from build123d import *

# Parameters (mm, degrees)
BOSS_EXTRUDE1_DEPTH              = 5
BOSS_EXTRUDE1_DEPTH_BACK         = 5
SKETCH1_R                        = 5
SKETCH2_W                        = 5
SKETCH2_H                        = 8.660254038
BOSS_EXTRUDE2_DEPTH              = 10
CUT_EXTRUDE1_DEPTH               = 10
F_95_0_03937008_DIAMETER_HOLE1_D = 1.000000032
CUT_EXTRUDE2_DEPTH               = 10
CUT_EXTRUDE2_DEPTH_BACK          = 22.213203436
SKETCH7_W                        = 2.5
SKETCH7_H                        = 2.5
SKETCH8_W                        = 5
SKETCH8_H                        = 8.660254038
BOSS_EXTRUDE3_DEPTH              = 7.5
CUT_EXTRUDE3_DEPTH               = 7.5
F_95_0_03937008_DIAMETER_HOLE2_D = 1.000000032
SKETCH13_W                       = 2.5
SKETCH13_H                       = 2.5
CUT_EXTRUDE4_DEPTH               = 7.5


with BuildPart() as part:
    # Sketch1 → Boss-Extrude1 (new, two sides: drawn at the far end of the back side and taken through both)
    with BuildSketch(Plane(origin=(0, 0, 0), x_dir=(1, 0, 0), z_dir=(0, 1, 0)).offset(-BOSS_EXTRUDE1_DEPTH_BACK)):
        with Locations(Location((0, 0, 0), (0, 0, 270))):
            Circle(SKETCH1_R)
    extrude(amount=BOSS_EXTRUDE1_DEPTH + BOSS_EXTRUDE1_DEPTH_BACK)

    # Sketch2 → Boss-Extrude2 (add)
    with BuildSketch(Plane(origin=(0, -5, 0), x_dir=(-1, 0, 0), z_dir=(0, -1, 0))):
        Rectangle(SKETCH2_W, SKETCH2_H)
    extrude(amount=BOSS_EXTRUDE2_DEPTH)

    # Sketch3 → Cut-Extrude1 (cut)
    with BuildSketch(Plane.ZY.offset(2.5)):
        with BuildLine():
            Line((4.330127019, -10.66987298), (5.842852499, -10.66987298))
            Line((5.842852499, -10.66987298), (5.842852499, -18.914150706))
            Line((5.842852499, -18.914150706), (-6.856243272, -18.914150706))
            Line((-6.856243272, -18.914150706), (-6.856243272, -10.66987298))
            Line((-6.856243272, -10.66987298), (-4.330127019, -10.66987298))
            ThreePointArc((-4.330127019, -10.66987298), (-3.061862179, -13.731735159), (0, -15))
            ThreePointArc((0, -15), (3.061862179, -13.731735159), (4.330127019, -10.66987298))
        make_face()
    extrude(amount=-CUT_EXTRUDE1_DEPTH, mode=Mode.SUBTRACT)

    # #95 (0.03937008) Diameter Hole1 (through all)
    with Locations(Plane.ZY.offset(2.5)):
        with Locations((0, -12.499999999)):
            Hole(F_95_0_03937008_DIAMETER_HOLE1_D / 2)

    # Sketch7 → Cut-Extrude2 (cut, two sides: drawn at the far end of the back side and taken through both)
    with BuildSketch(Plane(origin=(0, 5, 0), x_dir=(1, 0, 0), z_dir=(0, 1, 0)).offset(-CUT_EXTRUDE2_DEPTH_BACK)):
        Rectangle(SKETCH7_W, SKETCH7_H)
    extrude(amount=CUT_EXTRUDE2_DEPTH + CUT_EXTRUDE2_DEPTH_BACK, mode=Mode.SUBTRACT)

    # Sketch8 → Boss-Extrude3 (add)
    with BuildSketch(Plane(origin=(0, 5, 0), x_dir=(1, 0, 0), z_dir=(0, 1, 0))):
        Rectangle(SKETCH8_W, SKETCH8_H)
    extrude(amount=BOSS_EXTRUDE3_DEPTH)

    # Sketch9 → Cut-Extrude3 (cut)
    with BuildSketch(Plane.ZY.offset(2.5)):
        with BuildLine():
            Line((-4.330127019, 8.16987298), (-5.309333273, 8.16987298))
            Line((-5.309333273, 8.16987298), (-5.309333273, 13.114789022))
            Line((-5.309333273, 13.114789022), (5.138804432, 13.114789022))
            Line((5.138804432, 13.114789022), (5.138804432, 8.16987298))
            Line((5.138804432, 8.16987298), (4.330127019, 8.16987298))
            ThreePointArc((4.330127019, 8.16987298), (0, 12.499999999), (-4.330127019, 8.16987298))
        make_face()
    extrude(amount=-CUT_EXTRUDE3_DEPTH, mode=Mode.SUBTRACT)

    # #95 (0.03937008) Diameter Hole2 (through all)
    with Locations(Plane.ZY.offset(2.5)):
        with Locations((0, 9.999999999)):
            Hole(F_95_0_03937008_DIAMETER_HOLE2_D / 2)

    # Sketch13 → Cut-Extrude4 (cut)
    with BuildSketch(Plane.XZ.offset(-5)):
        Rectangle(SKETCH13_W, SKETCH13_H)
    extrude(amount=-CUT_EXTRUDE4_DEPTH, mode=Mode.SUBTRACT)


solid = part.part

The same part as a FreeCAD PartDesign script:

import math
import FreeCAD as App
import Part
import Sketcher


def add_polygon(sketch, points):
    """Adds a closed chain of lines whose ends are joined by coincident constraints."""
    first, n = sketch.GeometryCount, len(points)
    for a, b in zip(points, points[1:] + points[:1]):
        sketch.addGeometry(Part.LineSegment(App.Vector(*a, 0), App.Vector(*b, 0)), False)
    for i in range(n):
        sketch.addConstraint(Sketcher.Constraint("Coincident", first + i, 2, first + (i + 1) % n, 1))

doc = App.newDocument("Part")
body = doc.addObject("PartDesign::Body", "Body")

# Sketch on XZ plane
sketch1 = doc.addObject("Sketcher::SketchObject", "Sketch")
body.addObject(sketch1)
sketch1.AttachmentSupport = (doc.XZ_Plane, [""])
sketch1.MapMode = "FlatFace"
sketch1.addGeometry(Part.Circle(App.Vector(0, 0, 0), App.Vector(0, 0, 1), 5), False)
sketch1.addConstraint(Sketcher.Constraint("Coincident", 0, 3, -1, 1))
sketch1.addConstraint(Sketcher.Constraint("Diameter", 0, 10.0))
pad1 = doc.addObject("PartDesign::Pad", "Pad")
body.addObject(pad1)
pad1.Profile = sketch1
pad1.Type = "TwoLengths"
pad1.Length = 5
pad1.Length2 = 5
pad1.Reversed = True

# Sketch on XZ plane
sketch2 = doc.addObject("Sketcher::SketchObject", "Sketch001")
body.addObject(sketch2)
sketch2.AttachmentSupport = (doc.XZ_Plane, [""])
sketch2.MapMode = "FlatFace"
sketch2.AttachmentOffset = App.Placement(App.Vector(0, 0, 5), App.Rotation())
add_polygon(sketch2, [(2.5, -4.330127), (2.5, 4.330127), (-2.5, 4.330127), (-2.5, -4.330127)])  # lines 0-3
sketch2.addConstraint(Sketcher.Constraint("Vertical", 0))
sketch2.addConstraint(Sketcher.Constraint("Horizontal", 1))
sketch2.addConstraint(Sketcher.Constraint("Vertical", 2))
sketch2.addConstraint(Sketcher.Constraint("Horizontal", 3))
sketch2.addConstraint(Sketcher.Constraint("Symmetric", 0, 2, 2, 2, -1, 1))
sketch2.addConstraint(Sketcher.Constraint("DistanceX", 1, 2, 1, 1, 5.0))
sketch2.addConstraint(Sketcher.Constraint("DistanceY", 0, 1, 0, 2, 8.660254))
pad2 = doc.addObject("PartDesign::Pad", "Pad001")
body.addObject(pad2)
pad2.Profile = sketch2
pad2.Length = 10

# Sketch on YZ plane
sketch3 = doc.addObject("Sketcher::SketchObject", "Sketch002")
body.addObject(sketch3)
sketch3.AttachmentSupport = (doc.YZ_Plane, [""])
sketch3.MapMode = "FlatFace"
sketch3.AttachmentOffset = App.Placement(App.Vector(0, 0, -2.5), App.Rotation())
sketch3.addGeometry(Part.LineSegment(App.Vector(-10.669873, 5.842852, 0), App.Vector(-10.669873, 4.330127, 0)), False)
sketch3.addGeometry(Part.ArcOfCircle(Part.Circle(App.Vector(-10.669873, 0, 0), App.Vector(0, 0, 1), 4.330127), math.radians(90), math.radians(180)), False)
sketch3.addGeometry(Part.ArcOfCircle(Part.Circle(App.Vector(-10.669873, 0, 0), App.Vector(0, 0, 1), 4.330127), math.radians(180), math.radians(270)), False)
sketch3.addGeometry(Part.LineSegment(App.Vector(-10.669873, -4.330127, 0), App.Vector(-10.669873, -6.856243, 0)), False)
sketch3.addGeometry(Part.LineSegment(App.Vector(-10.669873, -6.856243, 0), App.Vector(-18.914151, -6.856243, 0)), False)
sketch3.addGeometry(Part.LineSegment(App.Vector(-18.914151, -6.856243, 0), App.Vector(-18.914151, 5.842852, 0)), False)
sketch3.addGeometry(Part.LineSegment(App.Vector(-18.914151, 5.842852, 0), App.Vector(-10.669873, 5.842852, 0)), False)
sketch3.addConstraint(Sketcher.Constraint("Coincident", 0, 2, 1, 1))
sketch3.addConstraint(Sketcher.Constraint("Tangent", 1, 2, 2, 1))
sketch3.addConstraint(Sketcher.Constraint("Coincident", 2, 2, 3, 1))
sketch3.addConstraint(Sketcher.Constraint("Coincident", 3, 2, 4, 1))
sketch3.addConstraint(Sketcher.Constraint("Coincident", 4, 2, 5, 1))
sketch3.addConstraint(Sketcher.Constraint("Coincident", 5, 2, 6, 1))
sketch3.addConstraint(Sketcher.Constraint("Coincident", 6, 2, 0, 1))
sketch3.addConstraint(Sketcher.Constraint("Vertical", 0))
sketch3.addConstraint(Sketcher.Constraint("Vertical", 3))
sketch3.addConstraint(Sketcher.Constraint("Horizontal", 4))
sketch3.addConstraint(Sketcher.Constraint("Vertical", 5))
sketch3.addConstraint(Sketcher.Constraint("Horizontal", 6))
sketch3.addConstraint(Sketcher.Constraint("Equal", 1, 2))
sketch3.addConstraint(Sketcher.Constraint("Symmetric", 0, 2, 2, 2, -1))
sketch3.addConstraint(Sketcher.Constraint("PointOnObject", 1, 2, -1))
sketch3.addConstraint(Sketcher.Constraint("Vertical", 2, 3, 0, 2))
sketch3.addConstraint(Sketcher.Constraint("DistanceX", 1, 2, -1, 1, 15.0))
sketch3.addConstraint(Sketcher.Constraint("Radius", 1, 4.330127))
sketch3.addConstraint(Sketcher.Constraint("DistanceX", 4, 2, 4, 1, 8.244278))
sketch3.addConstraint(Sketcher.Constraint("DistanceY", 0, 2, 0, 1, 1.512725))
sketch3.addConstraint(Sketcher.Constraint("DistanceY", 3, 2, 3, 1, 2.526116))
pocket1 = doc.addObject("PartDesign::Pocket", "Pocket")
body.addObject(pocket1)
pocket1.Profile = sketch3
pocket1.Length = 10
pocket1.Reversed = True

# Sketch on YZ plane
sketch4 = doc.addObject("Sketcher::SketchObject", "Sketch003")
body.addObject(sketch4)
sketch4.AttachmentSupport = (doc.YZ_Plane, [""])
sketch4.MapMode = "FlatFace"
sketch4.AttachmentOffset = App.Placement(App.Vector(0, 0, -2.5), App.Rotation())
sketch4.addGeometry(Part.Circle(App.Vector(-12.5, 0, 0), App.Vector(0, 0, 1), 0.5), False)
sketch4.addConstraint(Sketcher.Constraint("PointOnObject", 0, 3, -1))
sketch4.addConstraint(Sketcher.Constraint("Diameter", 0, 1.0))
sketch4.addConstraint(Sketcher.Constraint("DistanceX", 0, 3, -1, 1, 12.5))
doc.recompute()
hole = doc.addObject("PartDesign::Hole", "Hole")
body.addObject(hole)
hole.Profile = sketch4
hole.ThreadType = "None"
hole.Diameter = 1
hole.DepthType = "ThroughAll"
hole.Reversed = True

# Sketch on XZ plane
sketch5 = doc.addObject("Sketcher::SketchObject", "Sketch004")
body.addObject(sketch5)
sketch5.AttachmentSupport = (doc.XZ_Plane, [""])
sketch5.MapMode = "FlatFace"
sketch5.AttachmentOffset = App.Placement(App.Vector(0, 0, -5), App.Rotation())
add_polygon(sketch5, [(-1.25, -1.25), (-1.25, 1.25), (1.25, 1.25), (1.25, -1.25)])  # lines 0-3
sketch5.addConstraint(Sketcher.Constraint("Vertical", 0))
sketch5.addConstraint(Sketcher.Constraint("Horizontal", 1))
sketch5.addConstraint(Sketcher.Constraint("Vertical", 2))
sketch5.addConstraint(Sketcher.Constraint("Horizontal", 3))
sketch5.addConstraint(Sketcher.Constraint("Symmetric", 0, 2, 2, 2, -1, 1))
sketch5.addConstraint(Sketcher.Constraint("Equal", 3, 0))
sketch5.addConstraint(Sketcher.Constraint("DistanceX", 1, 1, 1, 2, 2.5))
pocket2 = doc.addObject("PartDesign::Pocket", "Pocket001")
body.addObject(pocket2)
pocket2.Profile = sketch5
pocket2.Type = "ThroughAll"
pocket2.Midplane = True

# Sketch on XZ plane
sketch6 = doc.addObject("Sketcher::SketchObject", "Sketch005")
body.addObject(sketch6)
sketch6.AttachmentSupport = (doc.XZ_Plane, [""])
sketch6.MapMode = "FlatFace"
sketch6.AttachmentOffset = App.Placement(App.Vector(0, 0, -5), App.Rotation())
add_polygon(sketch6, [(-2.5, -4.330127), (-2.5, 4.330127), (2.5, 4.330127), (2.5, -4.330127)])  # lines 0-3
sketch6.addConstraint(Sketcher.Constraint("Vertical", 0))
sketch6.addConstraint(Sketcher.Constraint("Horizontal", 1))
sketch6.addConstraint(Sketcher.Constraint("Vertical", 2))
sketch6.addConstraint(Sketcher.Constraint("Horizontal", 3))
sketch6.addConstraint(Sketcher.Constraint("Symmetric", 0, 2, 2, 2, -1, 1))
sketch6.addConstraint(Sketcher.Constraint("DistanceX", 1, 1, 1, 2, 5.0))
sketch6.addConstraint(Sketcher.Constraint("DistanceY", 0, 1, 0, 2, 8.660254))
pad3 = doc.addObject("PartDesign::Pad", "Pad002")
body.addObject(pad3)
pad3.Profile = sketch6
pad3.Length = 7.5
pad3.Reversed = True

# Sketch on YZ plane
sketch7 = doc.addObject("Sketcher::SketchObject", "Sketch006")
body.addObject(sketch7)
sketch7.AttachmentSupport = (doc.YZ_Plane, [""])
sketch7.MapMode = "FlatFace"
sketch7.AttachmentOffset = App.Placement(App.Vector(0, 0, -2.5), App.Rotation())
sketch7.addGeometry(Part.LineSegment(App.Vector(8.169873, -5.309333, 0), App.Vector(8.169873, -4.330127, 0)), False)
sketch7.addGeometry(Part.ArcOfCircle(Part.Circle(App.Vector(8.169873, 0, 0), App.Vector(0, 0, 1), 4.330127), math.radians(-90), math.radians(90)), False)
sketch7.addGeometry(Part.LineSegment(App.Vector(8.169873, 4.330127, 0), App.Vector(8.169873, 5.138804, 0)), False)
sketch7.addGeometry(Part.LineSegment(App.Vector(8.169873, 5.138804, 0), App.Vector(13.114789, 5.138804, 0)), False)
sketch7.addGeometry(Part.LineSegment(App.Vector(13.114789, 5.138804, 0), App.Vector(13.114789, -5.309333, 0)), False)
sketch7.addGeometry(Part.LineSegment(App.Vector(13.114789, -5.309333, 0), App.Vector(8.169873, -5.309333, 0)), False)
sketch7.addConstraint(Sketcher.Constraint("Coincident", 0, 2, 1, 1))
sketch7.addConstraint(Sketcher.Constraint("Coincident", 1, 2, 2, 1))
sketch7.addConstraint(Sketcher.Constraint("Coincident", 2, 2, 3, 1))
sketch7.addConstraint(Sketcher.Constraint("Coincident", 3, 2, 4, 1))
sketch7.addConstraint(Sketcher.Constraint("Coincident", 4, 2, 5, 1))
sketch7.addConstraint(Sketcher.Constraint("Coincident", 5, 2, 0, 1))
sketch7.addConstraint(Sketcher.Constraint("Vertical", 0))
sketch7.addConstraint(Sketcher.Constraint("Vertical", 2))
sketch7.addConstraint(Sketcher.Constraint("Horizontal", 3))
sketch7.addConstraint(Sketcher.Constraint("Vertical", 4))
sketch7.addConstraint(Sketcher.Constraint("Horizontal", 5))
sketch7.addConstraint(Sketcher.Constraint("Symmetric", 0, 2, 1, 2, -1))
sketch7.addConstraint(Sketcher.Constraint("Vertical", 1, 3, 0, 2))
sketch7.addConstraint(Sketcher.Constraint("Radius", 1, 4.330127))
sketch7.addConstraint(Sketcher.Constraint("DistanceX", 3, 1, 3, 2, 4.944916))
sketch7.addConstraint(Sketcher.Constraint("DistanceY", 0, 1, 0, 2, 0.979206))
sketch7.addConstraint(Sketcher.Constraint("DistanceY", 2, 1, 2, 2, 0.808677))
sketch7.addConstraint(Sketcher.Constraint("DistanceX", -1, 1, 3, 2, 13.114789))
pocket3 = doc.addObject("PartDesign::Pocket", "Pocket002")
body.addObject(pocket3)
pocket3.Profile = sketch7
pocket3.Length = 7.5
pocket3.Reversed = True

# Sketch on YZ plane
sketch8 = doc.addObject("Sketcher::SketchObject", "Sketch007")
body.addObject(sketch8)
sketch8.AttachmentSupport = (doc.YZ_Plane, [""])
sketch8.MapMode = "FlatFace"
sketch8.AttachmentOffset = App.Placement(App.Vector(0, 0, -2.5), App.Rotation())
sketch8.addGeometry(Part.Circle(App.Vector(10, 0, 0), App.Vector(0, 0, 1), 0.5), False)
sketch8.addConstraint(Sketcher.Constraint("PointOnObject", 0, 3, -1))
sketch8.addConstraint(Sketcher.Constraint("Diameter", 0, 1.0))
sketch8.addConstraint(Sketcher.Constraint("DistanceX", -1, 1, 0, 3, 10.0))
doc.recompute()
hole2 = doc.addObject("PartDesign::Hole", "Hole001")
body.addObject(hole2)
hole2.Profile = sketch8
hole2.ThreadType = "None"
hole2.Diameter = 1
hole2.DepthType = "ThroughAll"
hole2.Reversed = True

# Sketch on XZ plane
sketch9 = doc.addObject("Sketcher::SketchObject", "Sketch008")
body.addObject(sketch9)
sketch9.AttachmentSupport = (doc.XZ_Plane, [""])
sketch9.MapMode = "FlatFace"
sketch9.AttachmentOffset = App.Placement(App.Vector(0, 0, -5), App.Rotation())
add_polygon(sketch9, [(-1.25, 1.25), (-1.25, -1.25), (1.25, -1.25), (1.25, 1.25)])  # lines 0-3
sketch9.addConstraint(Sketcher.Constraint("Vertical", 0))
sketch9.addConstraint(Sketcher.Constraint("Horizontal", 1))
sketch9.addConstraint(Sketcher.Constraint("Vertical", 2))
sketch9.addConstraint(Sketcher.Constraint("Horizontal", 3))
sketch9.addConstraint(Sketcher.Constraint("Symmetric", 0, 2, 2, 2, -1, 1))
sketch9.addConstraint(Sketcher.Constraint("Equal", 3, 0))
sketch9.addConstraint(Sketcher.Constraint("DistanceX", 1, 1, 1, 2, 2.5))
pocket4 = doc.addObject("PartDesign::Pocket", "Pocket003")
body.addObject(pocket4)
pocket4.Profile = sketch9
pocket4.Length = 7.5

doc.recompute()
